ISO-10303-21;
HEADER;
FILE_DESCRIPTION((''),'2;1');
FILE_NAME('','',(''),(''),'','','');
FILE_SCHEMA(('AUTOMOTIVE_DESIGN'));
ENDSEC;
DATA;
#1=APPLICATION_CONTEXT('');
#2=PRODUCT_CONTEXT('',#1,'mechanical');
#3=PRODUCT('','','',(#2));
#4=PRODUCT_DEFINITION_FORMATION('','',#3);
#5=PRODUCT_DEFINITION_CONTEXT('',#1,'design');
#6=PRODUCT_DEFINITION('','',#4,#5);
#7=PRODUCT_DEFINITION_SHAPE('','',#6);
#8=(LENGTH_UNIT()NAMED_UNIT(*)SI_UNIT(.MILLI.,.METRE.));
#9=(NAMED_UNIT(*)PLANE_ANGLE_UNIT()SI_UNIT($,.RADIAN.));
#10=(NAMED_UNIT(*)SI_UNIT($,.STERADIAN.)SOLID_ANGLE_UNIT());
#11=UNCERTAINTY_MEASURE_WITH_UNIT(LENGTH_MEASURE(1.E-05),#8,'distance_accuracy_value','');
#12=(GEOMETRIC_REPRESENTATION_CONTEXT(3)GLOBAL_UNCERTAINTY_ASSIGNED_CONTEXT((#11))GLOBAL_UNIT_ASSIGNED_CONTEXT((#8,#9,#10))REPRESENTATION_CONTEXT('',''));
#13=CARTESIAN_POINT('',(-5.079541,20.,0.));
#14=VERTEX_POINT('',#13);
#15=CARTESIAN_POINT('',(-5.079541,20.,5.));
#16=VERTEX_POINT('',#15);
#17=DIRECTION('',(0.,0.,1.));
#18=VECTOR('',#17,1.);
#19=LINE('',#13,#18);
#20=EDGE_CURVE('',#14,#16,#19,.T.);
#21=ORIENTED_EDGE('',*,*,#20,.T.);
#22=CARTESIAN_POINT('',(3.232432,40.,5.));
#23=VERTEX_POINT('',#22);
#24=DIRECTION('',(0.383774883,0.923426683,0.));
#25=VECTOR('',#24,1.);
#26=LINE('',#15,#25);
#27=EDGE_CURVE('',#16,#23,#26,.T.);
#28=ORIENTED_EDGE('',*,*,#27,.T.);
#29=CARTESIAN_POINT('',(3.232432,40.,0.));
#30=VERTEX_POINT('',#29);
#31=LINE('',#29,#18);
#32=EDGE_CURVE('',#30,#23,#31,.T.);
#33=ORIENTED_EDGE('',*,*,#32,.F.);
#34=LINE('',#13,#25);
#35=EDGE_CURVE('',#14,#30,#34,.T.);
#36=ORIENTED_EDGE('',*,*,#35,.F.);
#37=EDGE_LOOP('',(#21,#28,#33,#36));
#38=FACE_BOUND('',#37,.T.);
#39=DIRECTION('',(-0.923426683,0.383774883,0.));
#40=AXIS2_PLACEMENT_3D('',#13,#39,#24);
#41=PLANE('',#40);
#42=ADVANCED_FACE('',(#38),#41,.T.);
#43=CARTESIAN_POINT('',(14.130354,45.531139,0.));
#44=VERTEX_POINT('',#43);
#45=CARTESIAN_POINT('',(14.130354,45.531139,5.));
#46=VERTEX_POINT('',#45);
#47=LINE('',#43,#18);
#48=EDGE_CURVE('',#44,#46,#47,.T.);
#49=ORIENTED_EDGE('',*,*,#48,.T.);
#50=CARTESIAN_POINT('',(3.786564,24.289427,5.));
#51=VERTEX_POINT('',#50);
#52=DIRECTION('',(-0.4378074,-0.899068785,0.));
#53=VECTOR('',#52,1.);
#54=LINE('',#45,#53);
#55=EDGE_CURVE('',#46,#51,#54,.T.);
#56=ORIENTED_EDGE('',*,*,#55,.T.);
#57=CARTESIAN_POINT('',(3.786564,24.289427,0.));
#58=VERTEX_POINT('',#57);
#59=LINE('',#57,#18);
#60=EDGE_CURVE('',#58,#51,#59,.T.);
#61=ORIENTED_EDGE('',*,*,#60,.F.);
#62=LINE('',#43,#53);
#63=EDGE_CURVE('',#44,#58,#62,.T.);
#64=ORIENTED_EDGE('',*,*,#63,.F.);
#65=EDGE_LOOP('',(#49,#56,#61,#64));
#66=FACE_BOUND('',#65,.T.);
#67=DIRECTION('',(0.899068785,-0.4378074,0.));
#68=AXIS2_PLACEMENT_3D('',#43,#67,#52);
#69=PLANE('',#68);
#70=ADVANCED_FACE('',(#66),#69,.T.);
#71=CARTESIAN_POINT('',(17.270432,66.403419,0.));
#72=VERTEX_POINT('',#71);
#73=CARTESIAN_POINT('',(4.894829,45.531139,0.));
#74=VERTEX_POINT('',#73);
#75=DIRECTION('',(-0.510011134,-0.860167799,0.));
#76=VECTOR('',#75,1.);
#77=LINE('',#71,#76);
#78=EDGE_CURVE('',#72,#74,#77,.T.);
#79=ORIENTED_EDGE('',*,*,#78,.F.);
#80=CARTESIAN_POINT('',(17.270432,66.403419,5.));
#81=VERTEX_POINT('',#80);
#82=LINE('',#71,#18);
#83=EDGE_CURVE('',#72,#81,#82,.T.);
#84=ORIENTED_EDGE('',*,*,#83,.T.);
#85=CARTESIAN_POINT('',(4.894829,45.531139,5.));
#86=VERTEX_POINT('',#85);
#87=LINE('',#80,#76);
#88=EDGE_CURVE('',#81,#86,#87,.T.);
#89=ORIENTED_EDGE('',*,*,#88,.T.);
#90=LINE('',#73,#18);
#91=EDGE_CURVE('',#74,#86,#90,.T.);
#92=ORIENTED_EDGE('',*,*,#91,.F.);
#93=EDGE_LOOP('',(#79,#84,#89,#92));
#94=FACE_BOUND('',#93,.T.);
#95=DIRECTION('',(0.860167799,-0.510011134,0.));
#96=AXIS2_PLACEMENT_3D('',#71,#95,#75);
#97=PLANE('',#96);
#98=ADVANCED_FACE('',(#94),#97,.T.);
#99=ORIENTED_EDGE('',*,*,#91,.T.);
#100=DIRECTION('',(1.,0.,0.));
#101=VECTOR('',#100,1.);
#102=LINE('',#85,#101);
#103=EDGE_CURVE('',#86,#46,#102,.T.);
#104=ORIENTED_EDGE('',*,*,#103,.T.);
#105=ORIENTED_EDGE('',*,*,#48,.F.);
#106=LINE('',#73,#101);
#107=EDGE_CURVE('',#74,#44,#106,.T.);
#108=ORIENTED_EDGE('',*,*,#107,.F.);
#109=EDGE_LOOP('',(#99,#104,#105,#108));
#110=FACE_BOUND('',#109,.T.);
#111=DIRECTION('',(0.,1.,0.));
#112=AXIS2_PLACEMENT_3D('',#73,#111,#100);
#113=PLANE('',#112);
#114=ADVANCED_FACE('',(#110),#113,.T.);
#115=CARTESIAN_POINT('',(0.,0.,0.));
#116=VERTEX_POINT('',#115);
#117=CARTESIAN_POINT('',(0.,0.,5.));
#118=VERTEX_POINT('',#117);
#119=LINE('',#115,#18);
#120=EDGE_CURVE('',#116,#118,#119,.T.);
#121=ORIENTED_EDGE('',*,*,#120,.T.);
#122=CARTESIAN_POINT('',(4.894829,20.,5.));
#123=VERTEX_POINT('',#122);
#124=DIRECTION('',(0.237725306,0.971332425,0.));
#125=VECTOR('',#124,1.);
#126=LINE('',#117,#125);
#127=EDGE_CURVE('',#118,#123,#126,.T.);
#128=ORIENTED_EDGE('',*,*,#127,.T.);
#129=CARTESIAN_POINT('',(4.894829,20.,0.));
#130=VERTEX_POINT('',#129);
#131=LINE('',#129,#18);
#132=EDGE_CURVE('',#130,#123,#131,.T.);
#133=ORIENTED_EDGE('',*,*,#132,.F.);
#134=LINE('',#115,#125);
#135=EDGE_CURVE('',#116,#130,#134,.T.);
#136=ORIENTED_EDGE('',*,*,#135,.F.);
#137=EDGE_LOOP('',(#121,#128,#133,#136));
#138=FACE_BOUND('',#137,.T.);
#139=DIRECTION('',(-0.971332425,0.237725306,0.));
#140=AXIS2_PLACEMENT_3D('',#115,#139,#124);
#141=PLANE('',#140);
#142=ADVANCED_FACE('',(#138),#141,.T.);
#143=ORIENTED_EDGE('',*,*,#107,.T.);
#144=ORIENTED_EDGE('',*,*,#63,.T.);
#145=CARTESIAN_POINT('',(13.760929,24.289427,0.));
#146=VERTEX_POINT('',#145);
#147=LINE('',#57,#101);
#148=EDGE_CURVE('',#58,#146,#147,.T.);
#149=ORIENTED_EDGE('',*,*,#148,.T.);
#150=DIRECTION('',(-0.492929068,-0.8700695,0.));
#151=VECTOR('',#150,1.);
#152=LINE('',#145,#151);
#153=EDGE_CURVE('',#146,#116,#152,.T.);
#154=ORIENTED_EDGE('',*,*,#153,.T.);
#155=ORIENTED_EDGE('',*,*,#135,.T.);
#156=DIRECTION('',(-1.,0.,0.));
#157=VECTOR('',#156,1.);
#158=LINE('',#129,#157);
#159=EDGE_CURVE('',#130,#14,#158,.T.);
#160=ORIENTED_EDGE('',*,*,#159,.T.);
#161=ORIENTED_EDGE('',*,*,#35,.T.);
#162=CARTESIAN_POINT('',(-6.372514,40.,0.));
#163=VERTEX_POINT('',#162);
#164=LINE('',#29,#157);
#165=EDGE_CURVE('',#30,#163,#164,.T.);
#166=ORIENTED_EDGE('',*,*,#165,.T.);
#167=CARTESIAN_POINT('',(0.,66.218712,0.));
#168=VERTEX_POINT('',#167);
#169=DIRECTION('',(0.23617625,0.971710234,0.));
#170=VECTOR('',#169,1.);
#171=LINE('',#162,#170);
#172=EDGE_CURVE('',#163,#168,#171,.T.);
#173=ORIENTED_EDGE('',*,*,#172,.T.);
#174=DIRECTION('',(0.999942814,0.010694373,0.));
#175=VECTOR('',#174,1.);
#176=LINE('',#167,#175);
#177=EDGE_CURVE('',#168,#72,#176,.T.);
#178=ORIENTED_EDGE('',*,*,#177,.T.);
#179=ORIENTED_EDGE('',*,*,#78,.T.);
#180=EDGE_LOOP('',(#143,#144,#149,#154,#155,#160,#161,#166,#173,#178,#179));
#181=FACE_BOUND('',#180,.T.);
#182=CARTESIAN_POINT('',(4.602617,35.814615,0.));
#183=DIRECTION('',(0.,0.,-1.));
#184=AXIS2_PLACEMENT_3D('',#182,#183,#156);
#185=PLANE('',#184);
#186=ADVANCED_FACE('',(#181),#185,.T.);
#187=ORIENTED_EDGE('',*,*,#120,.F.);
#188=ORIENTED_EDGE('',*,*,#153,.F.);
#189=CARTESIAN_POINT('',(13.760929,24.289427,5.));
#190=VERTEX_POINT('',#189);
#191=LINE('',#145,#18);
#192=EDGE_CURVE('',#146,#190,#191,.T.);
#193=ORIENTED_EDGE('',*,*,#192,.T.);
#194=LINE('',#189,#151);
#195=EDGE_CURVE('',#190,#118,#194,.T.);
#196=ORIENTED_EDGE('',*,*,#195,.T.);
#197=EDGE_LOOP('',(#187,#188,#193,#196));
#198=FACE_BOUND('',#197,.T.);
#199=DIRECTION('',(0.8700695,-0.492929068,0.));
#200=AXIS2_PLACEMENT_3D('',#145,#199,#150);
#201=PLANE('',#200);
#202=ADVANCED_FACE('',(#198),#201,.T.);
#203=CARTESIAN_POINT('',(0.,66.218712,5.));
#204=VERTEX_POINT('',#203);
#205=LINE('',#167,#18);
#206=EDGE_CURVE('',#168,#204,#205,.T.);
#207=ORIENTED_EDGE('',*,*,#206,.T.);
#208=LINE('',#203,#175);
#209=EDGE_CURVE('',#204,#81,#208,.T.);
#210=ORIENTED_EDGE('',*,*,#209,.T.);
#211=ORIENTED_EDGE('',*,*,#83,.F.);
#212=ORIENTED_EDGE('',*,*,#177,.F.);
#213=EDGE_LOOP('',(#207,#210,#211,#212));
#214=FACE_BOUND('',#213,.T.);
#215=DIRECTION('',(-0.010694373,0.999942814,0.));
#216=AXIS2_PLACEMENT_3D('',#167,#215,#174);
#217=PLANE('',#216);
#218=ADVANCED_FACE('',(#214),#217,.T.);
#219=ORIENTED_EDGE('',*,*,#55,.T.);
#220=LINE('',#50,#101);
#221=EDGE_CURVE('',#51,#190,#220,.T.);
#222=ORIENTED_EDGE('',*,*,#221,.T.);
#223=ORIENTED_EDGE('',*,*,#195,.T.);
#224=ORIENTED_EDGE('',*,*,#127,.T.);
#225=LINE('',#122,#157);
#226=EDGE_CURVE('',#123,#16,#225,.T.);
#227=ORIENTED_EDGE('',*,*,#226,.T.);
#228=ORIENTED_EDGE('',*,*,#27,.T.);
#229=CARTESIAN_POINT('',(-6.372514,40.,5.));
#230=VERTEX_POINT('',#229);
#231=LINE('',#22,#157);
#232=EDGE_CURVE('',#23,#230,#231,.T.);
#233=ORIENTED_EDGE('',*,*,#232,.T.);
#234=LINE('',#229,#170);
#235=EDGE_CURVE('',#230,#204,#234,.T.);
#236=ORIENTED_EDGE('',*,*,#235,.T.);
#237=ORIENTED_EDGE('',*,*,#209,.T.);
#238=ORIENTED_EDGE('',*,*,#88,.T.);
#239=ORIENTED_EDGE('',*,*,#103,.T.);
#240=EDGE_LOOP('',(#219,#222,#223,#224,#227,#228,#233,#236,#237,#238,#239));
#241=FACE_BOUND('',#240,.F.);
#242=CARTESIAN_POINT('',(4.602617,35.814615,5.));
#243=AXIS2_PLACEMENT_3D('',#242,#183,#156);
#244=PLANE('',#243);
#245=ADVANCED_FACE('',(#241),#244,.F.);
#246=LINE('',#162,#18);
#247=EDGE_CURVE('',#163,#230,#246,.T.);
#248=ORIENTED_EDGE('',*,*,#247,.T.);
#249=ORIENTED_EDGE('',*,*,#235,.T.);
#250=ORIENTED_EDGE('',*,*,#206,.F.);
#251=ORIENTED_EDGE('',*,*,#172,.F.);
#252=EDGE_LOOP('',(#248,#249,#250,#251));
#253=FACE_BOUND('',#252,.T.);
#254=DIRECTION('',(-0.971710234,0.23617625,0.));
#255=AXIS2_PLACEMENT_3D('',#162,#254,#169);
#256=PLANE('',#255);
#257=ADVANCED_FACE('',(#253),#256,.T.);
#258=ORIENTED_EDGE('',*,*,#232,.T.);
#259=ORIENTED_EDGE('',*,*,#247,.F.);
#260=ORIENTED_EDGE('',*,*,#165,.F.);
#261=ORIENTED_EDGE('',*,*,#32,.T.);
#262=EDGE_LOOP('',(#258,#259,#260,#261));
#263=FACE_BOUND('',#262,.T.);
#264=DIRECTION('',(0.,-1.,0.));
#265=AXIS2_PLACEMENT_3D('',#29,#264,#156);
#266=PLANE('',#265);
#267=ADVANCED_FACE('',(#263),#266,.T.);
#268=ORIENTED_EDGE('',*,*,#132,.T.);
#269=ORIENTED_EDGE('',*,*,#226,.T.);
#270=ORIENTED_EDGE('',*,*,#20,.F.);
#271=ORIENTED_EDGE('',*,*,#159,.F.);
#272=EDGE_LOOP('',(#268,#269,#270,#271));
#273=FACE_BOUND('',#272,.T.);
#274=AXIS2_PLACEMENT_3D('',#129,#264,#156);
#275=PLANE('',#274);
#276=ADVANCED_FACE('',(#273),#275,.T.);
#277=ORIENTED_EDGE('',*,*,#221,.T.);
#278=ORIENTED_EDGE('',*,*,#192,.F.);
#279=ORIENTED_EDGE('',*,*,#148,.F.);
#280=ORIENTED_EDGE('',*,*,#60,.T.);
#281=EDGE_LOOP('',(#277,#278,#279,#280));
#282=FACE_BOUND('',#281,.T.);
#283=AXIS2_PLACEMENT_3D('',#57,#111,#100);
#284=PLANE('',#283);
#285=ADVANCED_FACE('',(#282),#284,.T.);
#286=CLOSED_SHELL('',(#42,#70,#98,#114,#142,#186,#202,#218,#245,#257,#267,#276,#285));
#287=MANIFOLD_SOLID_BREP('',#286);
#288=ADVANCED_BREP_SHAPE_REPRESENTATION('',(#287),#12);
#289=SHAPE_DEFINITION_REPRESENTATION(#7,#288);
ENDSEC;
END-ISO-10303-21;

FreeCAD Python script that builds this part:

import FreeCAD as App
import Part
import Sketcher
Q = App.Units.Quantity


def add_polygon(sketch, points):
    """Adds a closed chain of lines whose ends are joined by coincident constraints."""
    first, n = sketch.GeometryCount, len(points)
    for a, b in zip(points, points[1:] + points[:1]):
        sketch.addGeometry(Part.LineSegment(App.Vector(*a, 0), App.Vector(*b, 0)), False)
    for i in range(n):
        sketch.addConstraint(Sketcher.Constraint("Coincident", first + i, 2, first + (i + 1) % n, 1))

doc = App.newDocument("Part")
params = doc.addObject("Spreadsheet::Sheet", "Params")
for row, (alias, value) in enumerate([
    ("pad1_length", "5 mm"),
], start=1):
    params.set(f"A{row}", alias)
    params.set(f"B{row}", "=" + value)
    params.setAlias(f"B{row}", alias)

body = doc.addObject("PartDesign::Body", "Body")

# Sketch on XY plane
sketch1 = body.newObject("Sketcher::SketchObject", "Sketch")
sketch1.AttachmentSupport = (doc.getObject("XY_Plane"), [""])
sketch1.MapMode = "FlatFace"
add_polygon(sketch1, [(4.894829, 20), (0, 0), (13.760929, 24.289427), (3.786564, 24.289427), (14.130354, 45.531139), (4.894829, 45.531139), (17.270432, 66.403419), (0, 66.218712), (-6.372514, 40), (3.232432, 40), (-5.079541, 20)])  # lines 0-10
sketch1.addConstraint([
    Sketcher.Constraint("Horizontal", 2),
    Sketcher.Constraint("Horizontal", 4),
    Sketcher.Constraint("Horizontal", 8),
    Sketcher.Constraint("Horizontal", 10),
    Sketcher.Constraint("Coincident", 0, 2, -1, 1),
    Sketcher.Constraint("PointOnObject", 6, 2, -2),
    Sketcher.Constraint("Vertical", 4, 2, 10, 2),
    Sketcher.Constraint("DistanceY", -1, 1, 7, 2, Q("40 mm")),
    Sketcher.Constraint("DistanceY", -1, 1, 9, 2, Q("20 mm")),
    Sketcher.Constraint("DistanceX", 10, 1, 10, 2, Q("9.97437 mm")),
    Sketcher.Constraint("DistanceX", 4, 2, 1, 2, Q("8.8661 mm")),
    Sketcher.Constraint("Distance", 1, Q("27.916651 mm")),
    Sketcher.Constraint("Distance", 3, Q("23.626348 mm")),
    Sketcher.Constraint("Distance", 5, Q("24.265358 mm")),
    Sketcher.Constraint("Distance", 6, Q("17.27142 mm")),
    Sketcher.Constraint("Distance", 9, Q("21.65846 mm")),
    Sketcher.Constraint("DistanceX", 2, 2, 2, 1, Q("9.974365 mm")),
    Sketcher.Constraint("DistanceX", 4, 2, 4, 1, Q("9.235525 mm")),
    Sketcher.Constraint("DistanceX", 8, 1, 8, 2, Q("9.604946 mm")),
    Sketcher.Constraint("DistanceX", -1, 1, 1, 2, Q("13.760929 mm")),
    Sketcher.Constraint("DistanceX", -1, 1, 5, 2, Q("17.270432 mm")),
])
pad1 = body.newObject("PartDesign::Pad", "Pad")
pad1.Profile = sketch1
pad1.setExpression("Length", "Params.pad1_length")

doc.recompute()
